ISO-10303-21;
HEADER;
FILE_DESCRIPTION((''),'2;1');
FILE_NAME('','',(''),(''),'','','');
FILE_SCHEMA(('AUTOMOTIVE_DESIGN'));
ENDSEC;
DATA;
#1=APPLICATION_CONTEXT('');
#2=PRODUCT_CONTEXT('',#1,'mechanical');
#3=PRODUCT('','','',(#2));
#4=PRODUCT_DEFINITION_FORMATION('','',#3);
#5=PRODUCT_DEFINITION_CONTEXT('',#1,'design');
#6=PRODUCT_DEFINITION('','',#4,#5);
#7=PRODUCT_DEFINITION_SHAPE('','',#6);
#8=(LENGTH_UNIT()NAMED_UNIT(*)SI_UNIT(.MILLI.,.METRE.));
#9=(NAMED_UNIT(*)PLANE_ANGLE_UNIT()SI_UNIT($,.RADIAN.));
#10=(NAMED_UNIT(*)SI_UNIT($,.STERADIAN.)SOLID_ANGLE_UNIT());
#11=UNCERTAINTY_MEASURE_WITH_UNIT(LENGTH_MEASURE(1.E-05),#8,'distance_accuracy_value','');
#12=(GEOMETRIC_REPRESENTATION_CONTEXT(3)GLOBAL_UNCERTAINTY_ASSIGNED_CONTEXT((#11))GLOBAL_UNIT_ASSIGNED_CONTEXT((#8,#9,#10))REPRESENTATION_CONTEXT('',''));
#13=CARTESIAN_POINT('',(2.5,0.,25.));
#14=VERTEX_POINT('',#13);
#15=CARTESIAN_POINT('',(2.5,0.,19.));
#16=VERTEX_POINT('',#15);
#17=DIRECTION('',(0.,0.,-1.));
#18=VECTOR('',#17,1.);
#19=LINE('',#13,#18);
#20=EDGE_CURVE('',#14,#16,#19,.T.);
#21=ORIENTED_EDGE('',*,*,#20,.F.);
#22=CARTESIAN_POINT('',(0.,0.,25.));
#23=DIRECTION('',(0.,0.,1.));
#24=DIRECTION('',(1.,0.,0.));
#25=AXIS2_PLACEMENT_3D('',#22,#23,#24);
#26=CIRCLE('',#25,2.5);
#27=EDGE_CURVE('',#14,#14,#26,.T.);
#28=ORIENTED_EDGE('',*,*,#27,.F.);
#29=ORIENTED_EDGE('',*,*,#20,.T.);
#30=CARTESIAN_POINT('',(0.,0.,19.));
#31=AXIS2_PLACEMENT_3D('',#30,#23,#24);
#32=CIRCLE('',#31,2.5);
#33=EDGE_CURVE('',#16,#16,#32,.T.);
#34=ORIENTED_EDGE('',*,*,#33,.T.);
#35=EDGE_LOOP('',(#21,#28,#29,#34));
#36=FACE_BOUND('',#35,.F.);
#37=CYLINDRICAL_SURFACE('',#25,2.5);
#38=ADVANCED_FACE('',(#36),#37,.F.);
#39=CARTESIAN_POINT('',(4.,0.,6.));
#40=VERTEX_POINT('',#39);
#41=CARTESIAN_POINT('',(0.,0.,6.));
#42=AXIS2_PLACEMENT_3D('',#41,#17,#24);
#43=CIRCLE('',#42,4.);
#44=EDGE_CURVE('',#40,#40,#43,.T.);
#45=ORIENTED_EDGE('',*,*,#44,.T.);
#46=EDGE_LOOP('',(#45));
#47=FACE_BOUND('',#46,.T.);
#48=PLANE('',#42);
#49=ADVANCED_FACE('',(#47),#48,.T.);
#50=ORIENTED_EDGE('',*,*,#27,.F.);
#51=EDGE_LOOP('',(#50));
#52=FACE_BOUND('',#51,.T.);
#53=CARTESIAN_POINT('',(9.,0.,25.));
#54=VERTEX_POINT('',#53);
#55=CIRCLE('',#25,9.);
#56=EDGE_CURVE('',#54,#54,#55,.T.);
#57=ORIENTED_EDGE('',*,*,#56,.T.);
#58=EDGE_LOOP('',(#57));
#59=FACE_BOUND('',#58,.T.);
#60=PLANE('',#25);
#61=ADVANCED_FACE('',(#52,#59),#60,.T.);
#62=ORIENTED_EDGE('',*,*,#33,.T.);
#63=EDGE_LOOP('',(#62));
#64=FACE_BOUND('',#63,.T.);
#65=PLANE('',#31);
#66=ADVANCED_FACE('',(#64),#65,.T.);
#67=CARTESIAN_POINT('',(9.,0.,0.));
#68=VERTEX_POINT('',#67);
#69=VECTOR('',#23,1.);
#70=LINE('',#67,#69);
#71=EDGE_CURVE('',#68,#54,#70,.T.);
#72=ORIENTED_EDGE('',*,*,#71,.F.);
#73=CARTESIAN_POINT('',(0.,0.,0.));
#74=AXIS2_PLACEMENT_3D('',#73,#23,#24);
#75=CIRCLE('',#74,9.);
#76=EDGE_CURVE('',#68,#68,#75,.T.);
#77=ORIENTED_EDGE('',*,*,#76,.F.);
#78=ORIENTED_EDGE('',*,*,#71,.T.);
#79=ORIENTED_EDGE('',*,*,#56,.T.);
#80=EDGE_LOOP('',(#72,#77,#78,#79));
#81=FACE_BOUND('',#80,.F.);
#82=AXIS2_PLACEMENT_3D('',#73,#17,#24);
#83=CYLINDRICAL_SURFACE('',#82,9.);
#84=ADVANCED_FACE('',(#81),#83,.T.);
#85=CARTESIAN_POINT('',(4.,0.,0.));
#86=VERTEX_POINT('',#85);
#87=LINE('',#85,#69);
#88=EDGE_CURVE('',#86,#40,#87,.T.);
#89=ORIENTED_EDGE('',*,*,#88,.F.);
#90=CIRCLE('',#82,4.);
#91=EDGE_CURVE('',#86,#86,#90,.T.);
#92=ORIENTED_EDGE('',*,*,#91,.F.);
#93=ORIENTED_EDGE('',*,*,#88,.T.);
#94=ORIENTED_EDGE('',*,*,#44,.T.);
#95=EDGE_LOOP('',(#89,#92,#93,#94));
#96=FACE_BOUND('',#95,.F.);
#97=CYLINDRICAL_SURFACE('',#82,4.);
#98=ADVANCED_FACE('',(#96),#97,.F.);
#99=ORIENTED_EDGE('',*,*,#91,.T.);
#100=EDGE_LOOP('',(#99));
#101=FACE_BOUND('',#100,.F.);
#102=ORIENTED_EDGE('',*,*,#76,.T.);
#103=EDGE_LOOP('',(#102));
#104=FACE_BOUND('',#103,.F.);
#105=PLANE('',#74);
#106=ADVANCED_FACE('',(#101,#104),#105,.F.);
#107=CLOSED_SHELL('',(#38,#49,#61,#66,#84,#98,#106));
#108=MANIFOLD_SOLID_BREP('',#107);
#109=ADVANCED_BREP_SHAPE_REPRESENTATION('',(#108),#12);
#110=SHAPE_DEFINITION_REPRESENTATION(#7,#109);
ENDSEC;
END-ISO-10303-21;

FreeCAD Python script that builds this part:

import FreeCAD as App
import Part
import Sketcher
from FreeCAD import Vector

doc = App.newDocument("Part")
body = doc.addObject("PartDesign::Body", "Body")

sketch1 = doc.addObject("Sketcher::SketchObject", "Sketch")
body.addObject(sketch1)
sketch1.AttachmentSupport = (doc.XY_Plane, [""])
sketch1.MapMode = "FlatFace"
sketch1.addGeometry(Part.Circle(Vector(0, 0, 0), Vector(0, 0, 1), 9), False)
sketch1.addConstraint([
    Sketcher.Constraint("Coincident", 0, 3, -1, 1),
    Sketcher.Constraint("Diameter", 0, 18.0),
])
pad1 = doc.addObject("PartDesign::Pad", "Pad")
body.addObject(pad1)
pad1.Profile = sketch1
pad1.Length = 25

sketch2 = doc.addObject("Sketcher::SketchObject", "Sketch001")
body.addObject(sketch2)
sketch2.AttachmentSupport = (doc.XY_Plane, [""])
sketch2.MapMode = "FlatFace"
sketch2.AttachmentOffset = App.Placement(Vector(0, 0, 25), App.Rotation())
sketch2.addGeometry(Part.Circle(Vector(0, 0, 0), Vector(0, 0, 1), 2.5), False)
sketch2.addConstraint([
    Sketcher.Constraint("Coincident", 0, 3, -1, 1),
    Sketcher.Constraint("Diameter", 0, 5.0),
])
pocket1 = doc.addObject("PartDesign::Pocket", "Pocket")
body.addObject(pocket1)
pocket1.Profile = sketch2
pocket1.Length = 6

sketch3 = doc.addObject("Sketcher::SketchObject", "Sketch002")
body.addObject(sketch3)
sketch3.AttachmentSupport = (doc.XY_Plane, [""])
sketch3.MapMode = "FlatFace"
sketch3.addGeometry(Part.Circle(Vector(0, 0, 0), Vector(0, 0, 1), 4), False)
sketch3.addConstraint([
    Sketcher.Constraint("Coincident", 0, 3, -1, 1),
    Sketcher.Constraint("Diameter", 0, 8.0),
])
pocket2 = doc.addObject("PartDesign::Pocket", "Pocket001")
body.addObject(pocket2)
pocket2.Profile = sketch3
pocket2.Length = 6
pocket2.Reversed = True

doc.recompute()
